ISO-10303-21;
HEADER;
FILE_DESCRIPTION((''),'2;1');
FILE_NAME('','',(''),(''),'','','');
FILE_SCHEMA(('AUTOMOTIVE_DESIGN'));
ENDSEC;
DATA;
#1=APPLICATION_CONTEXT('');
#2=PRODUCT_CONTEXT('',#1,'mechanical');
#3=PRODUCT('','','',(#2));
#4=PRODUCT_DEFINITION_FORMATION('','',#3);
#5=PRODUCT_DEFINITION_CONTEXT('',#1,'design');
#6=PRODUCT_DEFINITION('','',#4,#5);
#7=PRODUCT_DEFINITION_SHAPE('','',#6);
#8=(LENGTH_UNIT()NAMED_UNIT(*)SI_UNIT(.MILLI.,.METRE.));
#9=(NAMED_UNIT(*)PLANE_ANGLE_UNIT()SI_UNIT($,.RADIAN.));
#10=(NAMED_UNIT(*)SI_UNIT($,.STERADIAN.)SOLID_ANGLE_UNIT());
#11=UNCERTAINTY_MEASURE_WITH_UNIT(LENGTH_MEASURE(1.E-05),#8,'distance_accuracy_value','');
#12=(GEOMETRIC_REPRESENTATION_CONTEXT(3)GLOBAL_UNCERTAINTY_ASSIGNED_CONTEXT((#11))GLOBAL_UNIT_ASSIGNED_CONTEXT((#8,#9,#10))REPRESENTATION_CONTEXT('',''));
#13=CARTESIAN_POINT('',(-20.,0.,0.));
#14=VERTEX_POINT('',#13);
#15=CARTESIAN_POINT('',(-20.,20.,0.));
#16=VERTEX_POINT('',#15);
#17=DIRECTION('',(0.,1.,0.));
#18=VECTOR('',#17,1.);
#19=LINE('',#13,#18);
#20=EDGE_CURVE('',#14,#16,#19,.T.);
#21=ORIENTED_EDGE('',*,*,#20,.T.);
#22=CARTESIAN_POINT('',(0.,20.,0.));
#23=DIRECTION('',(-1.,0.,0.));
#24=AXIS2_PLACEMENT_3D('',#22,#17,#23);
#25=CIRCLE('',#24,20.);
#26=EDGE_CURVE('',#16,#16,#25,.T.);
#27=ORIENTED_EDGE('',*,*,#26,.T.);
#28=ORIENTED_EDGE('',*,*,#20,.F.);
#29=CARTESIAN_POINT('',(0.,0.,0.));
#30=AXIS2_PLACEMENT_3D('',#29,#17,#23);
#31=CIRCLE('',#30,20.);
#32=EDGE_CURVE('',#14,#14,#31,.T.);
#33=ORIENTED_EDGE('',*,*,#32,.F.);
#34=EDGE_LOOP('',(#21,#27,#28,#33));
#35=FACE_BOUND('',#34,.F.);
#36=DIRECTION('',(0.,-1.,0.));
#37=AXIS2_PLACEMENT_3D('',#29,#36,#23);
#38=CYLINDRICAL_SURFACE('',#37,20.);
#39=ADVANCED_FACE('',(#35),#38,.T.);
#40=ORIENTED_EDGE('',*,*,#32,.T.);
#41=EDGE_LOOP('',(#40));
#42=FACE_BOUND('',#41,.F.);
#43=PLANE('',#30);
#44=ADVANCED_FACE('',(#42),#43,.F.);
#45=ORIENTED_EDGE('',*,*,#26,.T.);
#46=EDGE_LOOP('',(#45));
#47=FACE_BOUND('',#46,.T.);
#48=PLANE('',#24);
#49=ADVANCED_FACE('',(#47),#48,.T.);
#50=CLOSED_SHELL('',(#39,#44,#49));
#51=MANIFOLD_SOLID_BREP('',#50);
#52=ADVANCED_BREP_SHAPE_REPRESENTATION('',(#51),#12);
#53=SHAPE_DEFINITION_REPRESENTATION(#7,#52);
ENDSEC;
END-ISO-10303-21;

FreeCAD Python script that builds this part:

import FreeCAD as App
import Part
import Sketcher
from FreeCAD import Vector
Q = App.Units.Quantity

doc = App.newDocument("Part")
body = doc.addObject("PartDesign::Body", "Body")

# Sketch on XZ plane
sketch1 = body.newObject("Sketcher::SketchObject", "Sketch")
sketch1.AttachmentSupport = (doc.getObject("XZ_Plane"), [""])
sketch1.MapMode = "FlatFace"
sketch1.addGeometry(Part.Circle(Vector(0, 0, 0), Vector(0, 0, 1), 20), False)
sketch1.addConstraint(Sketcher.Constraint("Coincident", 0, 3, -1, 1))
sketch1.addConstraint(Sketcher.Constraint("Diameter", 0, Q("40 mm")))
pad1 = body.newObject("PartDesign::Pad", "Pad")
pad1.Profile = sketch1
pad1.Length = 20
pad1.Reversed = True

doc.recompute()
